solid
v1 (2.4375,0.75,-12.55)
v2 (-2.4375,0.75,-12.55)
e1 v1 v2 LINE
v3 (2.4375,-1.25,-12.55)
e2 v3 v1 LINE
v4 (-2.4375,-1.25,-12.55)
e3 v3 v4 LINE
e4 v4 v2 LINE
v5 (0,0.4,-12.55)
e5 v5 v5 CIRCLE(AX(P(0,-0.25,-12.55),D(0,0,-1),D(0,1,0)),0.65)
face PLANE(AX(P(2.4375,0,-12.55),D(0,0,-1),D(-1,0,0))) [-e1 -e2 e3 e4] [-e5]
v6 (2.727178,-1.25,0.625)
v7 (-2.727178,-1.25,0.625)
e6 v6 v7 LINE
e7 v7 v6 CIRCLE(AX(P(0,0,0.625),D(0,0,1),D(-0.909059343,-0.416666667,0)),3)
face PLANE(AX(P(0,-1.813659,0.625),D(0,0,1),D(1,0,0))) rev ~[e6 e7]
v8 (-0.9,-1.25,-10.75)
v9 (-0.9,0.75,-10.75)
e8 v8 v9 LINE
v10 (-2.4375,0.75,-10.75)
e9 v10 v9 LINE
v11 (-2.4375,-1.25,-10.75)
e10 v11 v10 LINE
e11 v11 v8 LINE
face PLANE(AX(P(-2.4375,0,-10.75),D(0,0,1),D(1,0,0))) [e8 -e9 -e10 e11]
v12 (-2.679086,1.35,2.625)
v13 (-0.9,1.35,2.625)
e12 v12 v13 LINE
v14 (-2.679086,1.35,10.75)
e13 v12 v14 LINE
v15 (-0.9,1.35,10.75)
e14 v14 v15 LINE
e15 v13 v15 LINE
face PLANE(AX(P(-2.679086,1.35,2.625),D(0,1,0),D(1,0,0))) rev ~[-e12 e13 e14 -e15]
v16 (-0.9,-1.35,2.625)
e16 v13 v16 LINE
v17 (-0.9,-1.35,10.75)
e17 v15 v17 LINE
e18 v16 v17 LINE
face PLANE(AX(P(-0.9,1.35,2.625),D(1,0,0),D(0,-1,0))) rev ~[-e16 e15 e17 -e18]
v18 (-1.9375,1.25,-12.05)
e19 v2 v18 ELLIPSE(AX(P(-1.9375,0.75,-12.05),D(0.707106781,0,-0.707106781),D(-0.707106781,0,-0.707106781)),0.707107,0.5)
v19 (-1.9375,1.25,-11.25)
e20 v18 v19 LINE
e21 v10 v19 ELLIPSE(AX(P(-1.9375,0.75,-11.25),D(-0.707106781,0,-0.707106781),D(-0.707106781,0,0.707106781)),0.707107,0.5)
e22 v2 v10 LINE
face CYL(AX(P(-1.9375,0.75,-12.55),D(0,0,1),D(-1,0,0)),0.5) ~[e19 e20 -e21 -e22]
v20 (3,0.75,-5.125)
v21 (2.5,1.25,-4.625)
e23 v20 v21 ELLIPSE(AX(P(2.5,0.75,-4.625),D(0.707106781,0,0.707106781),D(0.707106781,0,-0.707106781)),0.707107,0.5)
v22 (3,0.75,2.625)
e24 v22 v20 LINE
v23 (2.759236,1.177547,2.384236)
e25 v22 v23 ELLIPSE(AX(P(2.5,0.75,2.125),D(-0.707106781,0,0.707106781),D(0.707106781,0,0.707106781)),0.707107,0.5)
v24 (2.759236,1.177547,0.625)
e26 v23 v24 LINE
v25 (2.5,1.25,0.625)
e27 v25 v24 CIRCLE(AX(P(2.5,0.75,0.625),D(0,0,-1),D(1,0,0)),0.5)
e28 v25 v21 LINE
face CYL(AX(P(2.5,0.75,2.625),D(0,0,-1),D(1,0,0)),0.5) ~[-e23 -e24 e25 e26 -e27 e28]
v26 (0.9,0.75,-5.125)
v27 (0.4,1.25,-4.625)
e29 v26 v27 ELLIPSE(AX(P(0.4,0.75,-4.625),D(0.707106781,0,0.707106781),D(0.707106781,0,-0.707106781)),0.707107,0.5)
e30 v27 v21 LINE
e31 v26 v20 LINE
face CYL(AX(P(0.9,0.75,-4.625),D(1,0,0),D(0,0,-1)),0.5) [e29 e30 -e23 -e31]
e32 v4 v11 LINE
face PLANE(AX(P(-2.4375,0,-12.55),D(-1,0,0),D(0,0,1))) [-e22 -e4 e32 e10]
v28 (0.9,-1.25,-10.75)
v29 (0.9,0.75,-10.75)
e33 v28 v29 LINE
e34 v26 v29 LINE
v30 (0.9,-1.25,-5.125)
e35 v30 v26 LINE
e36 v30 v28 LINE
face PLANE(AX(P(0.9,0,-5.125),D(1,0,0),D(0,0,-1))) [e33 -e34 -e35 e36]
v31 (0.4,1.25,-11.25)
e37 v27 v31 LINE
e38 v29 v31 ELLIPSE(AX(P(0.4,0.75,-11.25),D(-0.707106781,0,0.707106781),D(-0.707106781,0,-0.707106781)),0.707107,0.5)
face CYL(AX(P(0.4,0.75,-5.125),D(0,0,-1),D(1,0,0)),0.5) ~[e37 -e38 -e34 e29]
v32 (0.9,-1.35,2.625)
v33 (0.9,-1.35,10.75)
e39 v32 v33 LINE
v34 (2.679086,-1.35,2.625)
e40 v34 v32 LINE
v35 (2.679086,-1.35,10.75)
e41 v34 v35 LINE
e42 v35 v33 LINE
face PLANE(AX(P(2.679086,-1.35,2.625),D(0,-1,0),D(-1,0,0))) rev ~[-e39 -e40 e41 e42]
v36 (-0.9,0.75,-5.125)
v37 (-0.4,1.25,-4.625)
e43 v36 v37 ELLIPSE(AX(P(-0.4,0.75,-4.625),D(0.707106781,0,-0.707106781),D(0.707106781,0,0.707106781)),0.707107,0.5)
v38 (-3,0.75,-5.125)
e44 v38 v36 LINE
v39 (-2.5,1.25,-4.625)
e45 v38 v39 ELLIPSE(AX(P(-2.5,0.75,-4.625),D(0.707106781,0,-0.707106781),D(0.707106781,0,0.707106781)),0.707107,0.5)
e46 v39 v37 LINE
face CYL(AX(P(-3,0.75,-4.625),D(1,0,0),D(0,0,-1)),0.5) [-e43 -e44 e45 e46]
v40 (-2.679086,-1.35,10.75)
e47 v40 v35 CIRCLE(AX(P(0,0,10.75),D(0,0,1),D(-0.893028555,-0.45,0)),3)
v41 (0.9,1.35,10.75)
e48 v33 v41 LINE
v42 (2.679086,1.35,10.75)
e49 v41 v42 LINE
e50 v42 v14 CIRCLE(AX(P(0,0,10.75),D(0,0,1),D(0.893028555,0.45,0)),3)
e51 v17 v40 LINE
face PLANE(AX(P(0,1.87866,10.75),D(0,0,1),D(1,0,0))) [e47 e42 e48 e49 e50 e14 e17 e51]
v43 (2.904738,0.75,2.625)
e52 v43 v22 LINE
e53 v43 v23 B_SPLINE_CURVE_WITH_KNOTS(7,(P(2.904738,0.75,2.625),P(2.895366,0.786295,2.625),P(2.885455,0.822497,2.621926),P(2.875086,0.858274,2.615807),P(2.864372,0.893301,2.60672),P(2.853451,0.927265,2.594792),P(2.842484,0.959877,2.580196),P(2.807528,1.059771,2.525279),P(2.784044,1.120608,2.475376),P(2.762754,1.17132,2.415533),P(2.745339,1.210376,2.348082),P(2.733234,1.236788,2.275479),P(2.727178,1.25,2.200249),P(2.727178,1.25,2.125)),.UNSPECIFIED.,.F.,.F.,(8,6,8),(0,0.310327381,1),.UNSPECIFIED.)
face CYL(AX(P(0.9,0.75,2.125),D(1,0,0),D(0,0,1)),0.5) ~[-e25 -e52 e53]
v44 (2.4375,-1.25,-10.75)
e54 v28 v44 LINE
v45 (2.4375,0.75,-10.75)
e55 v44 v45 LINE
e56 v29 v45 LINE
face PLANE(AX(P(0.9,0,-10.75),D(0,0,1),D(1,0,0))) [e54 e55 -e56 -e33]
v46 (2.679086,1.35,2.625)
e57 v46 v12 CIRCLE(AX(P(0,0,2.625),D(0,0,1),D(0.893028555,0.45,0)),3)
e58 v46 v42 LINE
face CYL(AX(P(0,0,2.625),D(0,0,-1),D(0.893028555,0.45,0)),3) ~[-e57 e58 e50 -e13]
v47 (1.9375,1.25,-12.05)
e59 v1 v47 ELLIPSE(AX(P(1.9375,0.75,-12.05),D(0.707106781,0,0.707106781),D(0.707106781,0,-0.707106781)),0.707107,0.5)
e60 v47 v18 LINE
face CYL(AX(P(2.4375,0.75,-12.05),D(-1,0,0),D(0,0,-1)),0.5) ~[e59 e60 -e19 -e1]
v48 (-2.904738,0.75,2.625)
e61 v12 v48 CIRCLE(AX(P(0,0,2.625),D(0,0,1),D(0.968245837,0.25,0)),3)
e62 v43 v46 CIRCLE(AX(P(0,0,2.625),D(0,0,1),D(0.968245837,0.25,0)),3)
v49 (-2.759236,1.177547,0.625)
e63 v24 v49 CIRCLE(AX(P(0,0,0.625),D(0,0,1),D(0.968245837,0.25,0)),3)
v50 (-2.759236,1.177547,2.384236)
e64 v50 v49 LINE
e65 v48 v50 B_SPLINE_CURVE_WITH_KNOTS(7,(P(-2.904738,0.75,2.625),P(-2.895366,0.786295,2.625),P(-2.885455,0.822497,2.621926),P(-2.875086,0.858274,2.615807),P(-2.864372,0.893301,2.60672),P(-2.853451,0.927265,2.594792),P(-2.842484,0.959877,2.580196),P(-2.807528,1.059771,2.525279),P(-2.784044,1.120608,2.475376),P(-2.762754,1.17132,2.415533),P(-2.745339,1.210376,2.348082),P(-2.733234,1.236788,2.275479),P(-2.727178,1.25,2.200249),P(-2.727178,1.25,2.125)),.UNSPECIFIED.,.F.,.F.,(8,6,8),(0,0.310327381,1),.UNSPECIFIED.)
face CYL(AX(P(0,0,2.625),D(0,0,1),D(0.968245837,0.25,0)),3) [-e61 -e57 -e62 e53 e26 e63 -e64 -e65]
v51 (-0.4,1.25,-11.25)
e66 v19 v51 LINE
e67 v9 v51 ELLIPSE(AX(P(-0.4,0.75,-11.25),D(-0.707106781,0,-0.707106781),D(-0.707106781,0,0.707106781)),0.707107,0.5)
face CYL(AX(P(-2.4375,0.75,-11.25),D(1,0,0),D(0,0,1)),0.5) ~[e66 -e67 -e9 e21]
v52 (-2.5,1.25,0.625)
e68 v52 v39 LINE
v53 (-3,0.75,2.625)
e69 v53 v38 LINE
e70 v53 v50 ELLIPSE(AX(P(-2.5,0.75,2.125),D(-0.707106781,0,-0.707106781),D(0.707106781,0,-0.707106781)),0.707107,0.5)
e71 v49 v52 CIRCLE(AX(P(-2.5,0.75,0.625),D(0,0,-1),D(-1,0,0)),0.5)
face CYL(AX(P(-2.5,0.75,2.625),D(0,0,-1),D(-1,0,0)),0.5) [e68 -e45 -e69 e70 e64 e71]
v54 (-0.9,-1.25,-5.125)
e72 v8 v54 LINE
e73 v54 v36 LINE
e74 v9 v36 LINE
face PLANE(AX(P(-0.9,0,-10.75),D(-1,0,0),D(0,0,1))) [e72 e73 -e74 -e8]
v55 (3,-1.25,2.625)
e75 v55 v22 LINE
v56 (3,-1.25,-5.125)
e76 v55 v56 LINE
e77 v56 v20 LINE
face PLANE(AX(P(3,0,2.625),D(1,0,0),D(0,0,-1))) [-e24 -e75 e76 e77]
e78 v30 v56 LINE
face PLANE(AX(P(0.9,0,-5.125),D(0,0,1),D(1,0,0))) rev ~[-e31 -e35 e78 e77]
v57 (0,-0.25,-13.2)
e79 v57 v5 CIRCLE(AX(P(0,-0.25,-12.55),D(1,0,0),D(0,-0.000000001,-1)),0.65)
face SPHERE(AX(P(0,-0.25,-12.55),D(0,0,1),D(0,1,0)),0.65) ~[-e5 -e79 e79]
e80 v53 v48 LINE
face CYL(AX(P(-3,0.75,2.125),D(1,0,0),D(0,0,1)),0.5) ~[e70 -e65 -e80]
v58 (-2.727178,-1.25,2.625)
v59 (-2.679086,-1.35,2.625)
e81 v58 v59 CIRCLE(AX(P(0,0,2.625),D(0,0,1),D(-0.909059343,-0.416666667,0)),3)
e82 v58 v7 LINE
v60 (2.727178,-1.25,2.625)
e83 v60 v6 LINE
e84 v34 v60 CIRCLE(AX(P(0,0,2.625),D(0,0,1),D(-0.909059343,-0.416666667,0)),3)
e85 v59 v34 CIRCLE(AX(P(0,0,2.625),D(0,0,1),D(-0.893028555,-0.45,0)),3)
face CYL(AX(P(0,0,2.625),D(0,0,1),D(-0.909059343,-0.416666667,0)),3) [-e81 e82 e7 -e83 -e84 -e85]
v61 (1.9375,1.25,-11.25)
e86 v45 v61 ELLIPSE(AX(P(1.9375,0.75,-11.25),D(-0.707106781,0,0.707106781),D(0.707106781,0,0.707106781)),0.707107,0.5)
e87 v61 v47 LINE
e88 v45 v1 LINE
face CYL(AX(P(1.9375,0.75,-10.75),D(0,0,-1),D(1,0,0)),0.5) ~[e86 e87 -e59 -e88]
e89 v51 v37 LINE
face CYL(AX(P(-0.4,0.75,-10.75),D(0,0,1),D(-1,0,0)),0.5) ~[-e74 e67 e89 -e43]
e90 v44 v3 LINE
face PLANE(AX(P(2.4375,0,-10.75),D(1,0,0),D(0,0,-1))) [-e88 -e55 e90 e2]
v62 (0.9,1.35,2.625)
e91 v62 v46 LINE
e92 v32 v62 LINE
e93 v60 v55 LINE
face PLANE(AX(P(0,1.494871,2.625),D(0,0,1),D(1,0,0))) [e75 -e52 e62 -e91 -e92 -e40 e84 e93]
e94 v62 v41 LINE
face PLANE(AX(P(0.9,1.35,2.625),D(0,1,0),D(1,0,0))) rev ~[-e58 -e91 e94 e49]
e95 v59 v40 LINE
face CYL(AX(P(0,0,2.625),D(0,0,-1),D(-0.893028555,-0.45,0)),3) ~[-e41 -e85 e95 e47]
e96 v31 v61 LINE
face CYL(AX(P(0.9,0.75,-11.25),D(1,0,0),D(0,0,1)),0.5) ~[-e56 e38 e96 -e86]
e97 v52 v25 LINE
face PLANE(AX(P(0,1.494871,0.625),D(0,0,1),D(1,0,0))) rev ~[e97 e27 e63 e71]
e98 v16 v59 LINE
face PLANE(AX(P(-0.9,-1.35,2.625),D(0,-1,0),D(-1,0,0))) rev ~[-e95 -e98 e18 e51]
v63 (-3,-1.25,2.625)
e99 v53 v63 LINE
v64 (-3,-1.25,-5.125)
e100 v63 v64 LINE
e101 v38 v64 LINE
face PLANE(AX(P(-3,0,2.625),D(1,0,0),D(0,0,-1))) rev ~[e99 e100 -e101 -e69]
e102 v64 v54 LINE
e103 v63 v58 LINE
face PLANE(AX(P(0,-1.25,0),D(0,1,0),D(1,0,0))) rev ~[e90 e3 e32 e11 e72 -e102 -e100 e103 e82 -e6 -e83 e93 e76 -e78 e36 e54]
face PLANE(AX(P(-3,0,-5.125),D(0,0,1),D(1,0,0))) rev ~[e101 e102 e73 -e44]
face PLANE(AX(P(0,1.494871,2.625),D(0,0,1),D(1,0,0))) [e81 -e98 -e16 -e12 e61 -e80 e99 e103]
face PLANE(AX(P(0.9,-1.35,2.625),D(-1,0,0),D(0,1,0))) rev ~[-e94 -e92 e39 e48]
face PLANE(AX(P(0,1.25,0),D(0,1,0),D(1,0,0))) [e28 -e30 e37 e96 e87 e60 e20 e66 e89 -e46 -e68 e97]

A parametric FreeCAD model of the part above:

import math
import FreeCAD as App
import Part
import Sketcher
Q = App.Units.Quantity


def edges_at(feature, points):
    """Names of the edges that pass closest to the given points."""
    edges = feature.Shape.Edges
    near = lambda p: min(range(len(edges)), key=lambda i: edges[i].distToShape(Part.Vertex(*p))[0])
    return sorted({f"Edge{near(p) + 1}" for p in points})


def add_polygon(sketch, points):
    """Adds a closed chain of lines whose ends are joined by coincident constraints."""
    first, n = sketch.GeometryCount, len(points)
    for a, b in zip(points, points[1:] + points[:1]):
        sketch.addGeometry(Part.LineSegment(App.Vector(*a, 0), App.Vector(*b, 0)), False)
    for i in range(n):
        sketch.addConstraint(Sketcher.Constraint("Coincident", first + i, 2, first + (i + 1) % n, 1))

doc = App.newDocument("Part")
params = doc.addObject("Spreadsheet::Sheet", "Params")
for row, (alias, value) in enumerate([
    ("sketch1_width", "1.8 mm"),
    ("sketch1_width2", "2.1 mm"),
    ("sketch1_height", "7.75 mm"),
    ("pad1_length", "2.5 mm"),
    ("fillet_radius", "0.5 mm"),
    ("sketch2_radius", "3 mm"),
    ("pad2_length", "2 mm"),
    ("sketch3_radius", "3 mm"),
    ("sketch3_height", "2.7 mm"),
    ("pad3_length", "8.125 mm"),
    ("sketch4_radius", "0.65 mm"),
    ("revolution_angle", "360 deg"),
], start=1):
    params.set(f"A{row}", alias)
    params.set(f"B{row}", "=" + value)
    params.setAlias(f"B{row}", alias)

body = doc.addObject("PartDesign::Body", "Body")

# Sketch on XZ plane
sketch1 = body.newObject("Sketcher::SketchObject", "Sketch")
sketch1.AttachmentSupport = (doc.getObject("XZ_Plane"), [""])
sketch1.MapMode = "FlatFace"
add_polygon(sketch1, [(-0.9, 2.6), (-0.9, 10.8), (0.9, 10.8), (0.9, 2.6), (3, 2.6), (3, -5.1), (0.9, -5.1), (0.9, -10.8), (2.4, -10.8), (2.4, -12.6), (-2.4, -12.6), (-2.4, -10.8), (-0.9, -10.8), (-0.9, -5.1), (-3, -5.1), (-3, 2.6)])  # lines 0-15
sketch1.addConstraint([
    Sketcher.Constraint("Vertical", 0),
    Sketcher.Constraint("Horizontal", 1),
    Sketcher.Constraint("Vertical", 2),
    Sketcher.Constraint("Horizontal", 3),
    Sketcher.Constraint("Vertical", 4),
    Sketcher.Constraint("Horizontal", 5),
    Sketcher.Constraint("Vertical", 6),
    Sketcher.Constraint("Horizontal", 7),
    Sketcher.Constraint("Vertical", 8),
    Sketcher.Constraint("Horizontal", 9),
    Sketcher.Constraint("Vertical", 10),
    Sketcher.Constraint("Horizontal", 11),
    Sketcher.Constraint("Vertical", 12),
    Sketcher.Constraint("Horizontal", 13),
    Sketcher.Constraint("Vertical", 14),
    Sketcher.Constraint("Horizontal", 15),
    Sketcher.Constraint("Symmetric", 0, 2, 6, 2, -1, 1),
    Sketcher.Constraint("Symmetric", 1, 2, 11, 2, -1, 1),
    Sketcher.Constraint("Symmetric", 5, 2, 12, 2, -2),
    Sketcher.Constraint("Symmetric", 3, 2, 14, 2, -2),
    Sketcher.Constraint("Equal", 7, 11),
    Sketcher.Constraint("Equal", 1, 8),
    Sketcher.Constraint("DistanceX", 1, 1, 1, 2, Q("1.8 mm")),
    Sketcher.Constraint("DistanceX", 3, 1, 3, 2, Q("2.1 mm")),
    Sketcher.Constraint("DistanceY", 4, 2, 4, 1, Q("7.75 mm")),
    Sketcher.Constraint("DistanceY", 6, 2, 1, 2, Q("21.5 mm")),
    Sketcher.Constraint("DistanceX", 9, 2, 9, 1, Q("4.875 mm")),
    Sketcher.Constraint("DistanceY", 0, 1, 0, 2, Q("8.125 mm")),
])
sketch1.setExpression("Constraints[38]", "Params.sketch1_width")
sketch1.setExpression("Constraints[39]", "Params.sketch1_width2")
sketch1.setExpression("Constraints[40]", "Params.sketch1_height")
pad1 = body.newObject("PartDesign::Pad", "Pad")
pad1.Profile = sketch1
pad1.setExpression("Length", "Params.pad1_length")
pad1.Midplane = True
doc.recompute()

fillet = body.newObject("PartDesign::Fillet", "Fillet")
fillet.Base = (pad1, edges_at(pad1, [
    (-1.95, 1.25, -5.125),
    (-3, 1.25, -1.25),
    (-1.95, 1.25, 2.625),
    (-0.9, 1.25, 6.688),
    (0, 1.25, 10.75),
    (0.9, 1.25, 6.688),
    (1.95, 1.25, 2.625),
    (3, 1.25, -1.25),
    (-0.9, 1.25, -7.938),
    (1.95, 1.25, -5.125),
    (0.9, 1.25, -7.938),
    (1.669, 1.25, -10.75),
    (2.438, 1.25, -11.65),
    (0, 1.25, -12.55),
    (-2.438, 1.25, -11.65),
    (-1.669, 1.25, -10.75),
]))
fillet.setExpression("Radius", "Params.fillet_radius")

# Sketch on XY plane
sketch2 = body.newObject("Sketcher::SketchObject", "Sketch001")
sketch2.AttachmentSupport = (doc.getObject("XY_Plane"), [""])
sketch2.MapMode = "FlatFace"
sketch2.AttachmentOffset = App.Placement(App.Vector(0, 0, 2.625), App.Rotation())
sketch2.addGeometry([
    Part.ArcOfCircle(Part.Circle(App.Vector(0, 0, 0), App.Vector(0, 0, 1), 3), math.radians(14), math.radians(166)),
    Part.LineSegment(App.Vector(-2.9, 0.8, 0), App.Vector(2.9, 0.8, 0)),
    Part.LineSegment(App.Vector(2.7, -1.2, 0), App.Vector(-2.7, -1.2, 0)),
    Part.ArcOfCircle(Part.Circle(App.Vector(0, 0, 0), App.Vector(0, 0, 1), 3), math.radians(-155), math.radians(-25)),
], False)
sketch2.addConstraint([
    Sketcher.Constraint("Coincident", 0, 1, 1, 2),
    Sketcher.Constraint("Coincident", 1, 1, 0, 2),
    Sketcher.Constraint("Coincident", 2, 1, 3, 2),
    Sketcher.Constraint("Coincident", 3, 1, 2, 2),
    Sketcher.Constraint("Horizontal", 1),
    Sketcher.Constraint("Horizontal", 2),
    Sketcher.Constraint("Coincident", 0, 3, -1, 1),
    Sketcher.Constraint("Coincident", 3, 3, -1, 1),
    Sketcher.Constraint("Equal", 0, 3),
    Sketcher.Constraint("Radius", 0, Q("3 mm")),
    Sketcher.Constraint("DistanceY", 2, 1, 0, 1, Q("2 mm")),
    Sketcher.Constraint("DistanceY", -1, 1, 0, 1, Q("0.75 mm")),
])
sketch2.setExpression("Constraints[9]", "Params.sketch2_radius")
pad2 = body.newObject("PartDesign::Pad", "Pad001")
pad2.Profile = sketch2
pad2.setExpression("Length", "Params.pad2_length")
pad2.Reversed = True

# Sketch on XY plane
sketch3 = body.newObject("Sketcher::SketchObject", "Sketch002")
sketch3.AttachmentSupport = (doc.getObject("XY_Plane"), [""])
sketch3.MapMode = "FlatFace"
sketch3.AttachmentOffset = App.Placement(App.Vector(0, 0, 2.625), App.Rotation())
sketch3.addGeometry([
    Part.ArcOfCircle(Part.Circle(App.Vector(0, 0, 0), App.Vector(0, 0, 1), 3), math.radians(27), math.radians(153)),  # 0
    Part.LineSegment(App.Vector(-2.7, 1.4, 0), App.Vector(-0.9, 1.4, 0)),  # 1
    Part.LineSegment(App.Vector(-0.9, 1.4, 0), App.Vector(-0.9, -1.4, 0)),  # 2
    Part.LineSegment(App.Vector(-0.9, -1.4, 0), App.Vector(-2.7, -1.4, 0)),  # 3
    Part.ArcOfCircle(Part.Circle(App.Vector(0, 0, 0), App.Vector(0, 0, 1), 3), math.radians(-153), math.radians(-27)),  # 4
    Part.LineSegment(App.Vector(2.7, -1.4, 0), App.Vector(0.9, -1.4, 0)),  # 5
    Part.LineSegment(App.Vector(0.9, -1.4, 0), App.Vector(0.9, 1.4, 0)),  # 6
    Part.LineSegment(App.Vector(0.9, 1.4, 0), App.Vector(2.7, 1.4, 0)),  # 7
], False)
sketch3.addConstraint([
    Sketcher.Constraint("Coincident", 0, 2, 1, 1),
    Sketcher.Constraint("Coincident", 1, 2, 2, 1),
    Sketcher.Constraint("Coincident", 2, 2, 3, 1),
    Sketcher.Constraint("Coincident", 3, 2, 4, 1),
    Sketcher.Constraint("Coincident", 4, 2, 5, 1),
    Sketcher.Constraint("Coincident", 5, 2, 6, 1),
    Sketcher.Constraint("Coincident", 6, 2, 7, 1),
    Sketcher.Constraint("Coincident", 7, 2, 0, 1),
    Sketcher.Constraint("Horizontal", 1),
    Sketcher.Constraint("Vertical", 2),
    Sketcher.Constraint("Horizontal", 3),
    Sketcher.Constraint("Horizontal", 5),
    Sketcher.Constraint("Vertical", 6),
    Sketcher.Constraint("Horizontal", 7),
    Sketcher.Constraint("Coincident", 0, 3, -1, 1),
    Sketcher.Constraint("Coincident", 4, 3, -1, 1),
    Sketcher.Constraint("Equal", 0, 4),
    Sketcher.Constraint("Symmetric", 1, 2, 5, 2, -1, 1),
    Sketcher.Constraint("Horizontal", 3, 2, 4, 2),
    Sketcher.Constraint("Horizontal", 1, 2, 6, 2),
    Sketcher.Constraint("Radius", 0, Q("3 mm")),
    Sketcher.Constraint("DistanceY", 2, 2, 2, 1, Q("2.7 mm")),
    Sketcher.Constraint("DistanceX", 1, 2, -1, 1, Q("0.9 mm")),
])
sketch3.setExpression("Constraints[20]", "Params.sketch3_radius")
sketch3.setExpression("Constraints[21]", "Params.sketch3_height")
pad3 = body.newObject("PartDesign::Pad", "Pad002")
pad3.Profile = sketch3
pad3.setExpression("Length", "Params.pad3_length")

# Sketch on YZ plane
sketch4 = body.newObject("Sketcher::SketchObject", "Sketch003")
sketch4.AttachmentSupport = (doc.getObject("YZ_Plane"), [""])
sketch4.MapMode = "FlatFace"
sketch4.addGeometry([
    Part.LineSegment(App.Vector(-0.2, -12.6, 0), App.Vector(-0.2, -13.2, 0)),
    Part.ArcOfCircle(Part.Circle(App.Vector(-0.2, -12.6, 0), App.Vector(0, 0, 1), 0.6), math.radians(-90), math.radians(0)),
    Part.LineSegment(App.Vector(0.4, -12.6, 0), App.Vector(-0.2, -12.6, 0)),
], False)
sketch4.addGeometry(Part.LineSegment(App.Vector(-0.2, -12.6, 0), App.Vector(-0.2, -13.2, 0)), True)  # axis
sketch4.addConstraint([
    Sketcher.Constraint("Coincident", 0, 2, 1, 1),
    Sketcher.Constraint("Coincident", 1, 2, 2, 1),
    Sketcher.Constraint("Coincident", 2, 2, 0, 1),
    Sketcher.Constraint("Vertical", 0),
    Sketcher.Constraint("Horizontal", 2),
    Sketcher.Constraint("Vertical", 3),
    Sketcher.Constraint("Coincident", 2, 2, 1, 3),
    Sketcher.Constraint("Coincident", 3, 1, 1, 3),
    Sketcher.Constraint("Equal", 0, 3),
    Sketcher.Constraint("Radius", 1, Q("0.65 mm")),
    Sketcher.Constraint("DistanceY", 0, 2, -1, 1, Q("13.2 mm")),
    Sketcher.Constraint("DistanceX", -1, 1, 1, 2, Q("0.4 mm")),
])
sketch4.setExpression("Constraints[9]", "Params.sketch4_radius")
revolution = body.newObject("PartDesign::Revolution", "Revolution")
revolution.Profile = sketch4
revolution.ReferenceAxis = (sketch4, ["Axis0"])
revolution.setExpression("Angle", "Params.revolution_angle")

doc.recompute()
